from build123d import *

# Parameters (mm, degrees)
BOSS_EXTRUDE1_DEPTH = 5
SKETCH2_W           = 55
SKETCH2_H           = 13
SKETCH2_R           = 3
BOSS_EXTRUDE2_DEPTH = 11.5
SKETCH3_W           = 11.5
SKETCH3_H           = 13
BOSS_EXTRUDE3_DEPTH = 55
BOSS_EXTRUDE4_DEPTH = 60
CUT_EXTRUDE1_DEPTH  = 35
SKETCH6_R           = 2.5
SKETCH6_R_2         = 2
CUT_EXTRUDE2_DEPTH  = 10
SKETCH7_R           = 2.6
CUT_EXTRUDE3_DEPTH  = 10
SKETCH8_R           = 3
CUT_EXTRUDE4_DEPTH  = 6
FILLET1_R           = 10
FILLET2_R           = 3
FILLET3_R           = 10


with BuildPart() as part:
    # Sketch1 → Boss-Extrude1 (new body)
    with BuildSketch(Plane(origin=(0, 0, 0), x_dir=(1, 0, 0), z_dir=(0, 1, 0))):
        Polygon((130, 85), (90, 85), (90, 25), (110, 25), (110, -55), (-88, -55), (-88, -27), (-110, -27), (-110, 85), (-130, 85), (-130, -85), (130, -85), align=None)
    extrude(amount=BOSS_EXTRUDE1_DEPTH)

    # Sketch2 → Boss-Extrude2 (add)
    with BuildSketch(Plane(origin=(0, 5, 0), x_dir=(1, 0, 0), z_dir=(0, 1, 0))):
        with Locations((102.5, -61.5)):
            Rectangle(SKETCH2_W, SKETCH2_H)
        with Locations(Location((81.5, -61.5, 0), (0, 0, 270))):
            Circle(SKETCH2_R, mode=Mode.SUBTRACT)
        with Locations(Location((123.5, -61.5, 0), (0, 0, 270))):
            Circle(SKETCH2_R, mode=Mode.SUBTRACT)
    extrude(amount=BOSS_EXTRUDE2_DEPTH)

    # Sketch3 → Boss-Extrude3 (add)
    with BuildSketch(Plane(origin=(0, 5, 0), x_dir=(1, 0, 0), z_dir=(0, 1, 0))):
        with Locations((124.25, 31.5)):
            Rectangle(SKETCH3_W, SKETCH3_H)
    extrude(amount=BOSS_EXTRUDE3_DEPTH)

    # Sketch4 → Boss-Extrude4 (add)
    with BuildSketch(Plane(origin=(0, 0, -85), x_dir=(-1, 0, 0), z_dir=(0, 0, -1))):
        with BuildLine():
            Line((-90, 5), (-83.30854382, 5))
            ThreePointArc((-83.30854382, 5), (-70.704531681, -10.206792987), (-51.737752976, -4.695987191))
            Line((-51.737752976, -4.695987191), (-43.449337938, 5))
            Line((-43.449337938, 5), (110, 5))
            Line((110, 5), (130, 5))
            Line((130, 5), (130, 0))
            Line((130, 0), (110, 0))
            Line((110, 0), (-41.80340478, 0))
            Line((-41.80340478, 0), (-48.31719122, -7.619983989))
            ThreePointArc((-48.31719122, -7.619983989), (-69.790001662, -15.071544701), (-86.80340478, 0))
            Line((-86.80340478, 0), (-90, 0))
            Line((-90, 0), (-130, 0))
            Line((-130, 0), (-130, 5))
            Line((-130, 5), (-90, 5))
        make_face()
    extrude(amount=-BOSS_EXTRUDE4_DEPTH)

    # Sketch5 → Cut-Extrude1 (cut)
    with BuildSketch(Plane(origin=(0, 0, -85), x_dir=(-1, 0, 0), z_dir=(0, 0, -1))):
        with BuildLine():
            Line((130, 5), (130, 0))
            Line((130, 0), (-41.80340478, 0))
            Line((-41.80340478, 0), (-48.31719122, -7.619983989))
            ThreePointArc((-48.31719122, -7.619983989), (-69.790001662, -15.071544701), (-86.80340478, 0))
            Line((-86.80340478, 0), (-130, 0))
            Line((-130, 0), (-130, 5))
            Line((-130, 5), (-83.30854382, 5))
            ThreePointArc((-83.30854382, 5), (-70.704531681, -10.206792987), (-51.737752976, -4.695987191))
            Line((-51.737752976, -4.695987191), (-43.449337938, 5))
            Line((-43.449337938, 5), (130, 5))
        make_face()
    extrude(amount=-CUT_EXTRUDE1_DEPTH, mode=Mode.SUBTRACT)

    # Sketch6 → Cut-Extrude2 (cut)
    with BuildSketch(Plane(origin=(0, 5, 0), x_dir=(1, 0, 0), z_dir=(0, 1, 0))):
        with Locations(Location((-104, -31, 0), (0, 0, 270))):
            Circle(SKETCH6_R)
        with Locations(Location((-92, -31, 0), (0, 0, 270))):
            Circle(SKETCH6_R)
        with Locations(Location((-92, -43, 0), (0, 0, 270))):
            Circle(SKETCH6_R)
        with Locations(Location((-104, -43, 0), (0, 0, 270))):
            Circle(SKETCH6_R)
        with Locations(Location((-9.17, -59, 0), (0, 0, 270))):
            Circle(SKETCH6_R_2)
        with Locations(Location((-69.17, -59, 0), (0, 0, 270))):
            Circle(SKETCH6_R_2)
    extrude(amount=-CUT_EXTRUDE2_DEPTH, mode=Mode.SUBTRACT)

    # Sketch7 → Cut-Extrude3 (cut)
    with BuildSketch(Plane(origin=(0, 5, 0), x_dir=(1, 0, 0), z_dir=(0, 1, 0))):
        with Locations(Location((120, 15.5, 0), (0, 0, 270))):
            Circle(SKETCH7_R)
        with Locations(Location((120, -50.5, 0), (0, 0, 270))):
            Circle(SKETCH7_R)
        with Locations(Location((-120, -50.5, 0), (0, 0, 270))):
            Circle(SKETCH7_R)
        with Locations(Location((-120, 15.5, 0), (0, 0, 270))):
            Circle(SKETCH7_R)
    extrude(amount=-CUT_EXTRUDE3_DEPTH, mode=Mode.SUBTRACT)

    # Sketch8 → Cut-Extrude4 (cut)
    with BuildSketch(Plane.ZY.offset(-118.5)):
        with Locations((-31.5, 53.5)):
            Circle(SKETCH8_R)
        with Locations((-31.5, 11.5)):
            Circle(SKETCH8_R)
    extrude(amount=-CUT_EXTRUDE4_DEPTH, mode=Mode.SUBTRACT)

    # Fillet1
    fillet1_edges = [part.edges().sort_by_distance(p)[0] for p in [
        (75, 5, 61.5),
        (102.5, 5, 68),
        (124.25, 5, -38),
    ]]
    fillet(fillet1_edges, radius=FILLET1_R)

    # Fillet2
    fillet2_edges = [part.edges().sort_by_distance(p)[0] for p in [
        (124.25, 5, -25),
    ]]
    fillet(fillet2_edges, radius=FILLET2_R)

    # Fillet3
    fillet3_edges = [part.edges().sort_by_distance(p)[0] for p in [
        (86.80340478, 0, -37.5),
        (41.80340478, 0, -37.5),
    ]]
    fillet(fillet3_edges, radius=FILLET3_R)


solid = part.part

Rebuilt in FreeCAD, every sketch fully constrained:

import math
import FreeCAD as App
import Part
import Sketcher

V = App.Vector


def edges_at(feature, points):
    """Names of the edges that pass closest to the given points."""
    edges = feature.Shape.Edges
    near = lambda p: min(range(len(edges)), key=lambda i: edges[i].distToShape(Part.Vertex(*p))[0])
    return sorted({f"Edge{near(p) + 1}" for p in points})

doc = App.newDocument("Part")
params = doc.addObject("Spreadsheet::Sheet", "Params")
for row, (alias, value) in enumerate([
    ("sketch1_width", "40 mm"),
    ("sketch1_width2", "20 mm"),
    ("sketch1_width3", "198 mm"),
    ("sketch1_width4", "22 mm"),
    ("sketch1_height", "60 mm"),
    ("pad1_length", "5 mm"),
    ("sketch2_diameter", "6 mm"),
    ("sketch2_width", "55 mm"),
    ("sketch2_height", "13 mm"),
    ("pad2_length", "11.5 mm"),
    ("sketch3_height", "13 mm"),
    ("sketch3_width", "11.5 mm"),
    ("pad3_length", "55 mm"),
    ("sketch4_radius", "18 mm"),
    ("sketch4_radius2", "22.5 mm"),
    ("sketch4_height", "5 mm"),
    ("pad4_length", "60 mm"),
    ("sketch5_radius", "18 mm"),
    ("sketch5_radius2", "22.5 mm"),
    ("sketch5_height", "5 mm"),
    ("pocket1_length", "35 mm"),
    ("sketch6_diameter", "5 mm"),
    ("sketch6_diameter2", "4 mm"),
    ("pocket2_length", "10 mm"),
    ("sketch7_diameter", "5.2 mm"),
    ("pocket3_length", "10 mm"),
    ("sketch8_diameter", "6 mm"),
    ("pocket4_length", "6 mm"),
    ("fillet_radius", "10 mm"),
    ("fillet2_radius", "3 mm"),
    ("fillet3_radius", "10 mm"),
], start=1):
    params.set(f"A{row}", alias)
    params.set(f"B{row}", "=" + value)
    params.setAlias(f"B{row}", alias)

body = doc.addObject("PartDesign::Body", "Body")

sketch1 = doc.addObject("Sketcher::SketchObject", "Sketch")
body.addObject(sketch1)
sketch1.AttachmentSupport = (doc.XZ_Plane, [""])
sketch1.MapMode = "FlatFace"
sketch1.addGeometry([
    Part.LineSegment(V(130, -85, 0), V(90, -85, 0)),
    Part.LineSegment(V(90, -85, 0), V(90, -25, 0)),
    Part.LineSegment(V(90, -25, 0), V(110, -25, 0)),
    Part.LineSegment(V(110, -25, 0), V(110, 55, 0)),
    Part.LineSegment(V(110, 55, 0), V(-88, 55, 0)),
    Part.LineSegment(V(-88, 55, 0), V(-88, 27, 0)),
    Part.LineSegment(V(-88, 27, 0), V(-110, 27, 0)),
    Part.LineSegment(V(-110, 27, 0), V(-110, -85, 0)),
    Part.LineSegment(V(-110, -85, 0), V(-130, -85, 0)),
    Part.LineSegment(V(-130, -85, 0), V(-130, 85, 0)),
    Part.LineSegment(V(-130, 85, 0), V(130, 85, 0)),
    Part.LineSegment(V(130, 85, 0), V(130, -85, 0)),
], False)
sketch1.addConstraint([
    Sketcher.Constraint("Coincident", 0, 2, 1, 1),
    Sketcher.Constraint("Coincident", 1, 2, 2, 1),
    Sketcher.Constraint("Coincident", 2, 2, 3, 1),
    Sketcher.Constraint("Coincident", 3, 2, 4, 1),
    Sketcher.Constraint("Coincident", 4, 2, 5, 1),
    Sketcher.Constraint("Coincident", 5, 2, 6, 1),
    Sketcher.Constraint("Coincident", 6, 2, 7, 1),
    Sketcher.Constraint("Coincident", 7, 2, 8, 1),
    Sketcher.Constraint("Coincident", 8, 2, 9, 1),
    Sketcher.Constraint("Coincident", 9, 2, 10, 1),
    Sketcher.Constraint("Coincident", 10, 2, 11, 1),
    Sketcher.Constraint("Coincident", 11, 2, 0, 1),
    Sketcher.Constraint("Horizontal", 0),
    Sketcher.Constraint("Vertical", 1),
    Sketcher.Constraint("Horizontal", 2),
    Sketcher.Constraint("Vertical", 3),
    Sketcher.Constraint("Horizontal", 4),
    Sketcher.Constraint("Vertical", 5),
    Sketcher.Constraint("Horizontal", 6),
    Sketcher.Constraint("Vertical", 7),
    Sketcher.Constraint("Horizontal", 8),
    Sketcher.Constraint("Vertical", 9),
    Sketcher.Constraint("Horizontal", 10),
    Sketcher.Constraint("Vertical", 11),
    Sketcher.Constraint("Symmetric", 8, 2, 10, 2, -1, 1),
    Sketcher.Constraint("Horizontal", 0, 2, 7, 2),
    Sketcher.Constraint("Equal", 2, 8),
    Sketcher.Constraint("DistanceX", 0, 2, 0, 1, 40.0),
    Sketcher.Constraint("DistanceX", 2, 1, 2, 2, 20.0),
    Sketcher.Constraint("DistanceX", 4, 2, 4, 1, 198.0),
    Sketcher.Constraint("DistanceX", 6, 2, 6, 1, 22.0),
    Sketcher.Constraint("DistanceY", 1, 1, 1, 2, 60.0),
    Sketcher.Constraint("DistanceY", 3, 1, 3, 2, 80.0),
    Sketcher.Constraint("DistanceY", 5, 2, 5, 1, 28.0),
    Sketcher.Constraint("DistanceY", 9, 1, 9, 2, 170.0),
])
sketch1.setExpression("Constraints[27]", "Params.sketch1_width")
sketch1.setExpression("Constraints[28]", "Params.sketch1_width2")
sketch1.setExpression("Constraints[29]", "Params.sketch1_width3")
sketch1.setExpression("Constraints[30]", "Params.sketch1_width4")
sketch1.setExpression("Constraints[31]", "Params.sketch1_height")
pad1 = doc.addObject("PartDesign::Pad", "Pad")
body.addObject(pad1)
pad1.Profile = sketch1
pad1.setExpression("Length", "Params.pad1_length")
pad1.Reversed = True

sketch2 = doc.addObject("Sketcher::SketchObject", "Sketch001")
body.addObject(sketch2)
sketch2.AttachmentSupport = (doc.XZ_Plane, [""])
sketch2.MapMode = "FlatFace"
sketch2.AttachmentOffset = App.Placement(V(0, 0, -5), App.Rotation())
sketch2.addGeometry([
    Part.LineSegment(V(75, 55, 0), V(75, 68, 0)),
    Part.LineSegment(V(75, 68, 0), V(130, 68, 0)),
    Part.LineSegment(V(130, 68, 0), V(130, 55, 0)),
    Part.LineSegment(V(130, 55, 0), V(75, 55, 0)),
    Part.Circle(V(81.5, 61.5, 0), V(0, 0, 1), 3),
    Part.Circle(V(123.5, 61.5, 0), V(0, 0, 1), 3),
], False)
sketch2.addConstraint([
    Sketcher.Constraint("Coincident", 0, 2, 1, 1),
    Sketcher.Constraint("Coincident", 1, 2, 2, 1),
    Sketcher.Constraint("Coincident", 2, 2, 3, 1),
    Sketcher.Constraint("Coincident", 3, 2, 0, 1),
    Sketcher.Constraint("Vertical", 0),
    Sketcher.Constraint("Horizontal", 1),
    Sketcher.Constraint("Vertical", 2),
    Sketcher.Constraint("Horizontal", 3),
    Sketcher.Constraint("Equal", 4, 5),
    Sketcher.Constraint("Horizontal", 4, 3, 5, 3),
    Sketcher.Constraint("Diameter", 4, 6.0),
    Sketcher.Constraint("DistanceX", 1, 1, 1, 2, 55.0),
    Sketcher.Constraint("DistanceY", 0, 1, 0, 2, 13.0),
    Sketcher.Constraint("DistanceX", -1, 1, 0, 2, 75.0),
    Sketcher.Constraint("DistanceY", -1, 1, 0, 2, 68.0),
    Sketcher.Constraint("DistanceX", 4, 3, 5, 3, 42.0),
    Sketcher.Constraint("DistanceX", -1, 1, 4, 3, 81.5),
    Sketcher.Constraint("DistanceY", -1, 1, 4, 3, 61.5),
])
sketch2.setExpression("Constraints[10]", "Params.sketch2_diameter")
sketch2.setExpression("Constraints[11]", "Params.sketch2_width")
sketch2.setExpression("Constraints[12]", "Params.sketch2_height")
pad2 = doc.addObject("PartDesign::Pad", "Pad001")
body.addObject(pad2)
pad2.Profile = sketch2
pad2.setExpression("Length", "Params.pad2_length")
pad2.Reversed = True

sketch3 = doc.addObject("Sketcher::SketchObject", "Sketch002")
body.addObject(sketch3)
sketch3.AttachmentSupport = (doc.XZ_Plane, [""])
sketch3.MapMode = "FlatFace"
sketch3.AttachmentOffset = App.Placement(V(0, 0, -5), App.Rotation())
sketch3.addGeometry([
    Part.LineSegment(V(118.5, -38, 0), V(118.5, -25, 0)),
    Part.LineSegment(V(118.5, -25, 0), V(130, -25, 0)),
    Part.LineSegment(V(130, -25, 0), V(130, -38, 0)),
    Part.LineSegment(V(130, -38, 0), V(118.5, -38, 0)),
], False)
sketch3.addConstraint([
    Sketcher.Constraint("Coincident", 0, 2, 1, 1),
    Sketcher.Constraint("Coincident", 1, 2, 2, 1),
    Sketcher.Constraint("Coincident", 2, 2, 3, 1),
    Sketcher.Constraint("Coincident", 3, 2, 0, 1),
    Sketcher.Constraint("Vertical", 0),
    Sketcher.Constraint("Horizontal", 1),
    Sketcher.Constraint("Vertical", 2),
    Sketcher.Constraint("Horizontal", 3),
    Sketcher.Constraint("DistanceY", 0, 1, 0, 2, 13.0),
    Sketcher.Constraint("DistanceX", 1, 1, 1, 2, 11.5),
    Sketcher.Constraint("DistanceY", 0, 2, -1, 1, 25.0),
    Sketcher.Constraint("DistanceX", -1, 1, 1, 2, 130.0),
])
sketch3.setExpression("Constraints[8]", "Params.sketch3_height")
sketch3.setExpression("Constraints[9]", "Params.sketch3_width")
pad3 = doc.addObject("PartDesign::Pad", "Pad002")
body.addObject(pad3)
pad3.Profile = sketch3
pad3.setExpression("Length", "Params.pad3_length")
pad3.Reversed = True

sketch4 = doc.addObject("Sketcher::SketchObject", "Sketch003")
body.addObject(sketch4)
sketch4.AttachmentSupport = (doc.XY_Plane, [""])
sketch4.MapMode = "FlatFace"
sketch4.AttachmentOffset = App.Placement(V(0, 0, -85), App.Rotation())
sketch4.addGeometry([
    Part.ArcOfCircle(Part.Circle(V(65.42, 7, 0), V(0, 0, 1), 18), math.radians(-139.475204), math.radians(-6.37937)),
    Part.LineSegment(V(83.308544, 5, 0), V(130, 5, 0)),
    Part.LineSegment(V(130, 5, 0), V(130, 0, 0)),
    Part.LineSegment(V(130, 0, 0), V(86.803405, 0, 0)),
    Part.ArcOfCircle(Part.Circle(V(65.42, 7, 0), V(0, 0, 1), 22.5), math.radians(-139.475204), math.radians(-18.126204)),
    Part.LineSegment(V(48.317191, -7.619984, 0), V(41.803405, 0, 0)),
    Part.LineSegment(V(41.803405, 0, 0), V(-130, 0, 0)),
    Part.LineSegment(V(-130, 0, 0), V(-130, 5, 0)),
    Part.LineSegment(V(-130, 5, 0), V(43.449338, 5, 0)),
    Part.LineSegment(V(43.449338, 5, 0), V(51.737753, -4.695987, 0)),
], False)
sketch4.addConstraint([
    Sketcher.Constraint("Coincident", 0, 2, 1, 1),
    Sketcher.Constraint("Coincident", 1, 2, 2, 1),
    Sketcher.Constraint("Coincident", 2, 2, 3, 1),
    Sketcher.Constraint("Coincident", 3, 2, 4, 2),
    Sketcher.Constraint("Tangent", 4, 1, 5, 1),
    Sketcher.Constraint("Coincident", 5, 2, 6, 1),
    Sketcher.Constraint("Coincident", 6, 2, 7, 1),
    Sketcher.Constraint("Coincident", 7, 2, 8, 1),
    Sketcher.Constraint("Coincident", 8, 2, 9, 1),
    Sketcher.Constraint("Tangent", 9, 2, 0, 1),
    Sketcher.Constraint("Horizontal", 1),
    Sketcher.Constraint("Vertical", 2),
    Sketcher.Constraint("Horizontal", 3),
    Sketcher.Constraint("Horizontal", 6),
    Sketcher.Constraint("Vertical", 7),
    Sketcher.Constraint("Horizontal", 8),
    Sketcher.Constraint("Coincident", 4, 3, 0, 3),
    Sketcher.Constraint("Symmetric", 2, 2, 6, 2, -1, 1),
    Sketcher.Constraint("PointOnObject", 2, 2, -1),
    Sketcher.Constraint("Parallel", 5, 9),
    Sketcher.Constraint("Horizontal", 1, 2, 7, 2),
    Sketcher.Constraint("Radius", 0, 18.0),
    Sketcher.Constraint("Radius", 4, 22.5),
    Sketcher.Constraint("DistanceY", 2, 2, 2, 1, 5.0),
    Sketcher.Constraint("DistanceY", -1, 1, 0, 3, 7.0),
    Sketcher.Constraint("DistanceX", -1, 1, 1, 2, 130.0),
    Sketcher.Constraint("DistanceX", 5, 2, 3, 2, 45.0),
    Sketcher.Constraint("DistanceX", -1, 1, 0, 3, 65.42),
])
sketch4.setExpression("Constraints[21]", "Params.sketch4_radius")
sketch4.setExpression("Constraints[22]", "Params.sketch4_radius2")
sketch4.setExpression("Constraints[23]", "Params.sketch4_height")
pad4 = doc.addObject("PartDesign::Pad", "Pad003")
body.addObject(pad4)
pad4.Profile = sketch4
pad4.setExpression("Length", "Params.pad4_length")

sketch5 = doc.addObject("Sketcher::SketchObject", "Sketch004")
body.addObject(sketch5)
sketch5.AttachmentSupport = (doc.XY_Plane, [""])
sketch5.MapMode = "FlatFace"
sketch5.AttachmentOffset = App.Placement(V(0, 0, -85), App.Rotation())
sketch5.addGeometry([
    Part.LineSegment(V(-130, 0, 0), V(-130, 5, 0)),
    Part.LineSegment(V(-130, 5, 0), V(43.449338, 5, 0)),
    Part.LineSegment(V(43.449338, 5, 0), V(51.737753, -4.695987, 0)),
    Part.ArcOfCircle(Part.Circle(V(65.42, 7, 0), V(0, 0, 1), 18), math.radians(-139.475204), math.radians(-6.37937)),
    Part.LineSegment(V(83.308544, 5, 0), V(130, 5, 0)),
    Part.LineSegment(V(130, 5, 0), V(130, 0, 0)),
    Part.LineSegment(V(130, 0, 0), V(86.803405, 0, 0)),
    Part.ArcOfCircle(Part.Circle(V(65.42, 7, 0), V(0, 0, 1), 22.5), math.radians(-139.475204), math.radians(-18.126204)),
    Part.LineSegment(V(48.317191, -7.619984, 0), V(41.803405, 0, 0)),
    Part.LineSegment(V(41.803405, 0, 0), V(-130, 0, 0)),
], False)
sketch5.addConstraint([
    Sketcher.Constraint("Coincident", 0, 2, 1, 1),
    Sketcher.Constraint("Coincident", 1, 2, 2, 1),
    Sketcher.Constraint("Tangent", 2, 2, 3, 1),
    Sketcher.Constraint("Coincident", 3, 2, 4, 1),
    Sketcher.Constraint("Coincident", 4, 2, 5, 1),
    Sketcher.Constraint("Coincident", 5, 2, 6, 1),
    Sketcher.Constraint("Coincident", 6, 2, 7, 2),
    Sketcher.Constraint("Tangent", 7, 1, 8, 1),
    Sketcher.Constraint("Coincident", 8, 2, 9, 1),
    Sketcher.Constraint("Coincident", 9, 2, 0, 1),
    Sketcher.Constraint("Vertical", 0),
    Sketcher.Constraint("Horizontal", 1),
    Sketcher.Constraint("Horizontal", 4),
    Sketcher.Constraint("Vertical", 5),
    Sketcher.Constraint("Horizontal", 6),
    Sketcher.Constraint("Horizontal", 9),
    Sketcher.Constraint("Coincident", 7, 3, 3, 3),
    Sketcher.Constraint("Symmetric", 5, 2, 9, 2, -1, 1),
    Sketcher.Constraint("PointOnObject", 5, 2, -1),
    Sketcher.Constraint("Parallel", 2, 8),
    Sketcher.Constraint("Horizontal", 1, 2, 3, 2),
    Sketcher.Constraint("Radius", 3, 18.0),
    Sketcher.Constraint("Radius", 7, 22.5),
    Sketcher.Constraint("DistanceY", 0, 1, 0, 2, 5.0),
    Sketcher.Constraint("DistanceY", -1, 1, 3, 3, 7.0),
    Sketcher.Constraint("DistanceX", 0, 2, -1, 1, 130.0),
    Sketcher.Constraint("DistanceX", -1, 1, 3, 3, 65.42),
    Sketcher.Constraint("Distance", 8, 10.024648),
])
sketch5.setExpression("Constraints[21]", "Params.sketch5_radius")
sketch5.setExpression("Constraints[22]", "Params.sketch5_radius2")
sketch5.setExpression("Constraints[23]", "Params.sketch5_height")
pocket1 = doc.addObject("PartDesign::Pocket", "Pocket")
body.addObject(pocket1)
pocket1.Profile = sketch5
pocket1.setExpression("Length", "Params.pocket1_length")
pocket1.Reversed = True

sketch6 = doc.addObject("Sketcher::SketchObject", "Sketch005")
body.addObject(sketch6)
sketch6.AttachmentSupport = (doc.XZ_Plane, [""])
sketch6.MapMode = "FlatFace"
sketch6.AttachmentOffset = App.Placement(V(0, 0, -5), App.Rotation())
sketch6.addGeometry([
    Part.Circle(V(-104, 31, 0), V(0, 0, 1), 2.5),
    Part.Circle(V(-92, 31, 0), V(0, 0, 1), 2.5),
    Part.Circle(V(-92, 43, 0), V(0, 0, 1), 2.5),
    Part.Circle(V(-104, 43, 0), V(0, 0, 1), 2.5),
    Part.Circle(V(-9.17, 59, 0), V(0, 0, 1), 2),
    Part.Circle(V(-69.17, 59, 0), V(0, 0, 1), 2),
], False)
sketch6.addConstraint([
    Sketcher.Constraint("Equal", 0, 1),
    Sketcher.Constraint("Equal", 1, 2),
    Sketcher.Constraint("Equal", 2, 3),
    Sketcher.Constraint("Equal", 4, 5),
    Sketcher.Constraint("Horizontal", 0, 3, 1, 3),
    Sketcher.Constraint("Horizontal", 2, 3, 3, 3),
    Sketcher.Constraint("Horizontal", 4, 3, 5, 3),
    Sketcher.Constraint("Vertical", 1, 3, 2, 3),
    Sketcher.Constraint("Vertical", 0, 3, 3, 3),
    Sketcher.Constraint("Diameter", 0, 5.0),
    Sketcher.Constraint("Diameter", 4, 4.0),
    Sketcher.Constraint("DistanceX", 0, 3, -1, 1, 104.0),
    Sketcher.Constraint("DistanceY", -1, 1, 0, 3, 31.0),
    Sketcher.Constraint("DistanceX", 1, 3, -1, 1, 92.0),
    Sketcher.Constraint("DistanceY", -1, 1, 2, 3, 43.0),
    Sketcher.Constraint("DistanceY", -1, 1, 4, 3, 59.0),
    Sketcher.Constraint("DistanceX", 5, 3, 4, 3, 60.0),
    Sketcher.Constraint("DistanceX", 4, 3, -1, 1, 9.17),
])
sketch6.setExpression("Constraints[9]", "Params.sketch6_diameter")
sketch6.setExpression("Constraints[10]", "Params.sketch6_diameter2")
pocket2 = doc.addObject("PartDesign::Pocket", "Pocket001")
body.addObject(pocket2)
pocket2.Profile = sketch6
pocket2.setExpression("Length", "Params.pocket2_length")
pocket2.Reversed = True

sketch7 = doc.addObject("Sketcher::SketchObject", "Sketch006")
body.addObject(sketch7)
sketch7.AttachmentSupport = (doc.XZ_Plane, [""])
sketch7.MapMode = "FlatFace"
sketch7.AttachmentOffset = App.Placement(V(0, 0, -5), App.Rotation())
sketch7.addGeometry([
    Part.Circle(V(120, -15.5, 0), V(0, 0, 1), 2.6),
    Part.Circle(V(120, 50.5, 0), V(0, 0, 1), 2.6),
    Part.Circle(V(-120, 50.5, 0), V(0, 0, 1), 2.6),
    Part.Circle(V(-120, -15.5, 0), V(0, 0, 1), 2.6),
], False)
sketch7.addConstraint([
    Sketcher.Constraint("Equal", 0, 1),
    Sketcher.Constraint("Equal", 1, 2),
    Sketcher.Constraint("Equal", 2, 3),
    Sketcher.Constraint("Symmetric", 1, 3, 2, 3, -2),
    Sketcher.Constraint("Symmetric", 0, 3, 3, 3, -2),
    Sketcher.Constraint("Vertical", 0, 3, 1, 3),
    Sketcher.Constraint("Diameter", 0, 5.2),
    Sketcher.Constraint("DistanceX", -1, 1, 0, 3, 120.0),
    Sketcher.Constraint("DistanceY", 0, 3, 1, 3, 66.0),
    Sketcher.Constraint("DistanceY", 0, 3, -1, 1, 15.5),
])
sketch7.setExpression("Constraints[6]", "Params.sketch7_diameter")
pocket3 = doc.addObject("PartDesign::Pocket", "Pocket002")
body.addObject(pocket3)
pocket3.Profile = sketch7
pocket3.setExpression("Length", "Params.pocket3_length")
pocket3.Reversed = True

sketch8 = doc.addObject("Sketcher::SketchObject", "Sketch007")
body.addObject(sketch8)
sketch8.AttachmentSupport = (doc.YZ_Plane, [""])
sketch8.MapMode = "FlatFace"
sketch8.AttachmentOffset = App.Placement(V(0, 0, 118.5), App.Rotation())
sketch8.addGeometry([
    Part.Circle(V(53.5, -31.5, 0), V(0, 0, 1), 3),
    Part.Circle(V(11.5, -31.5, 0), V(0, 0, 1), 3),
], False)
sketch8.addConstraint([
    Sketcher.Constraint("Equal", 0, 1),
    Sketcher.Constraint("Horizontal", 0, 3, 1, 3),
    Sketcher.Constraint("Diameter", 0, 6.0),
    Sketcher.Constraint("DistanceX", 1, 3, 0, 3, 42.0),
    Sketcher.Constraint("DistanceX", -1, 1, 0, 3, 53.5),
    Sketcher.Constraint("DistanceY", 0, 3, -1, 1, 31.5),
])
sketch8.setExpression("Constraints[2]", "Params.sketch8_diameter")
pocket4 = doc.addObject("PartDesign::Pocket", "Pocket003")
body.addObject(pocket4)
pocket4.Profile = sketch8
pocket4.setExpression("Length", "Params.pocket4_length")
pocket4.Reversed = True
doc.recompute()

fillet = doc.addObject("PartDesign::Fillet", "Fillet")
body.addObject(fillet)
fillet.Base = (pocket4, edges_at(pocket4, [(75, 5, 61.5), (102.5, 5, 68), (124.25, 5, -38)]))
fillet.setExpression("Radius", "Params.fillet_radius")
doc.recompute()

fillet2 = doc.addObject("PartDesign::Fillet", "Fillet001")
body.addObject(fillet2)
fillet2.Base = (fillet, edges_at(fillet, [(124.25, 5, -25)]))
fillet2.setExpression("Radius", "Params.fillet2_radius")
doc.recompute()

fillet3 = doc.addObject("PartDesign::Fillet", "Fillet002")
body.addObject(fillet3)
fillet3.Base = (fillet2, edges_at(fillet2, [(86.803, 0, -37.5), (41.803, 0, -37.5)]))
fillet3.setExpression("Radius", "Params.fillet3_radius")

doc.recompute()
